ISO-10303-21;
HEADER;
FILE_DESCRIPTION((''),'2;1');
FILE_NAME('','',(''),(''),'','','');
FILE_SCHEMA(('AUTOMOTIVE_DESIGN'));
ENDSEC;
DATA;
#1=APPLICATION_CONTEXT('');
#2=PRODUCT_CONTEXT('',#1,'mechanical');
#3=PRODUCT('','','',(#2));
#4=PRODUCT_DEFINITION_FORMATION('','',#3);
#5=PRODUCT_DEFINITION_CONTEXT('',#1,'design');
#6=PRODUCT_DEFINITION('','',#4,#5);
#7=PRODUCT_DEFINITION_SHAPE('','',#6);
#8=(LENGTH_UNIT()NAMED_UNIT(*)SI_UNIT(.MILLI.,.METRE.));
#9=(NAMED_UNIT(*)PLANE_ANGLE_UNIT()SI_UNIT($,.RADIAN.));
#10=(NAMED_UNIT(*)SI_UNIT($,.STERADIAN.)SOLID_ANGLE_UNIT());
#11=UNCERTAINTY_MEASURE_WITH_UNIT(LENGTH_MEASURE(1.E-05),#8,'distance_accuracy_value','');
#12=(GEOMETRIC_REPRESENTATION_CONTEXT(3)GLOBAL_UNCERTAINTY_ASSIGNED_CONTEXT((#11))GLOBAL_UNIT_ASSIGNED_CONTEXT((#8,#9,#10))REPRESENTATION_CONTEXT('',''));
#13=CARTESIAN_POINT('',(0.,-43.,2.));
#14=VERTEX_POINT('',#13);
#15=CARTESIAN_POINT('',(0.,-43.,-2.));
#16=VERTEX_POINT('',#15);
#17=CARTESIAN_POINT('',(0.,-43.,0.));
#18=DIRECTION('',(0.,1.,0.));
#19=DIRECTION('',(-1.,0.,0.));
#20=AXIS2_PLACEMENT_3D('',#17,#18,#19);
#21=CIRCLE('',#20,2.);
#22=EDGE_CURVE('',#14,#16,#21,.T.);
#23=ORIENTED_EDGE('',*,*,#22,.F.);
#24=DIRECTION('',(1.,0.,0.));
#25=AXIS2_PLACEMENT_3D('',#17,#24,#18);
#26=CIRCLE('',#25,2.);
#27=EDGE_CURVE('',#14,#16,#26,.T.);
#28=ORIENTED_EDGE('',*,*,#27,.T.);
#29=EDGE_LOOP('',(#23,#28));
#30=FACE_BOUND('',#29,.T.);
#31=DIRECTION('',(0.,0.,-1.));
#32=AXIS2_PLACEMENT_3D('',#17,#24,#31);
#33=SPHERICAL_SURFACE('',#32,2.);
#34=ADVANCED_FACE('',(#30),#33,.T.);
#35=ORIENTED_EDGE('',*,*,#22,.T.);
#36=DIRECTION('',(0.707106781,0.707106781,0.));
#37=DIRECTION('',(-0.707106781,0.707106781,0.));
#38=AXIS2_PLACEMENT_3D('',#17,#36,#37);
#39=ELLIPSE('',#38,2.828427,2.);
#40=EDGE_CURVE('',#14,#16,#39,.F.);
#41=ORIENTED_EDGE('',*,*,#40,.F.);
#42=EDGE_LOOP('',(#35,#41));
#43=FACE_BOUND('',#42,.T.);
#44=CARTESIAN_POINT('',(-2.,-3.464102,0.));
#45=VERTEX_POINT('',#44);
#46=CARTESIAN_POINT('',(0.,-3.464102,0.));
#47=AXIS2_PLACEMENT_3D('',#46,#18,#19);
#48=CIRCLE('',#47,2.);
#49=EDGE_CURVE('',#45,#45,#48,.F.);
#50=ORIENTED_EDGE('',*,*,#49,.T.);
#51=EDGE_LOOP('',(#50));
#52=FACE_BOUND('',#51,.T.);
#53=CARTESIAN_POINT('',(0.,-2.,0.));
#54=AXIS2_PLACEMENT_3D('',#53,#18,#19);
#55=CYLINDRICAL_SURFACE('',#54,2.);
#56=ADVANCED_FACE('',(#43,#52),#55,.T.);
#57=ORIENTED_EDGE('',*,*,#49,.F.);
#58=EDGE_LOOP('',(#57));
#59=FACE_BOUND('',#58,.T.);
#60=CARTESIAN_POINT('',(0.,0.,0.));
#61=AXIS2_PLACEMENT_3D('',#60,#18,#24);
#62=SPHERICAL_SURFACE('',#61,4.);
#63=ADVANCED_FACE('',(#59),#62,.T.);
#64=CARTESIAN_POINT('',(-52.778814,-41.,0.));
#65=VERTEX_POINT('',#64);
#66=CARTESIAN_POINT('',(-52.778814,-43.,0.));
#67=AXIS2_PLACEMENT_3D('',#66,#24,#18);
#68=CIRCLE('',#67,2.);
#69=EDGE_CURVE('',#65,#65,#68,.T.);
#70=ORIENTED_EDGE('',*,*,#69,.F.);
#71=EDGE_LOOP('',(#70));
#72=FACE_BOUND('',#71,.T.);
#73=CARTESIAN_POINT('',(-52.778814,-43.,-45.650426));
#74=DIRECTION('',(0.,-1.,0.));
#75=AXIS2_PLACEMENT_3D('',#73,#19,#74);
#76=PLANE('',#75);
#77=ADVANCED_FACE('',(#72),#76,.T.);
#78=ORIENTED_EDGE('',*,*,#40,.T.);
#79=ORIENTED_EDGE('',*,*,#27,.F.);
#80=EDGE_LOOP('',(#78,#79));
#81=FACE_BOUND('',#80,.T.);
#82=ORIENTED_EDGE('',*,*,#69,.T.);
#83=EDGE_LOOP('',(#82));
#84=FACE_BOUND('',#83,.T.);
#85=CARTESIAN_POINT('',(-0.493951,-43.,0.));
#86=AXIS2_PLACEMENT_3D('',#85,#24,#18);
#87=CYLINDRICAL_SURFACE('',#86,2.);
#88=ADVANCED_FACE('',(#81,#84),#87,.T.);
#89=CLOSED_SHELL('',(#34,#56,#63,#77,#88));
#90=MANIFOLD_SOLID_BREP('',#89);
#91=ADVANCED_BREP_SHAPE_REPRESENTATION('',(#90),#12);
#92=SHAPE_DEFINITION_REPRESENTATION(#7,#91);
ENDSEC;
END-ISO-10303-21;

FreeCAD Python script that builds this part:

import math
import FreeCAD as App
import Part
import Sketcher
from FreeCAD import Vector

doc = App.newDocument("Part")
body = doc.addObject("PartDesign::Body", "Body")

sketch1 = body.newObject("Sketcher::SketchObject", "Sketch")
sketch1.AttachmentSupport = (doc.getObject("XY_Plane"), [""])
sketch1.MapMode = "FlatFace"
sketch1.addGeometry([
    Part.ArcOfCircle(Part.Circle(Vector(0, 0, 0), Vector(0, 0, 1), 4), math.radians(90), math.radians(240)),
    Part.ArcOfCircle(Part.Circle(Vector(0, 0, 0), Vector(0, 0, 1), 4), math.radians(-120), math.radians(-90)),
    Part.LineSegment(Vector(0, -4, 0), Vector(0, 4, 0)),
], False)
sketch1.addConstraint([
    Sketcher.Constraint("Tangent", 0, 2, 1, 1),
    Sketcher.Constraint("Coincident", 1, 2, 2, 1),
    Sketcher.Constraint("Coincident", 2, 2, 0, 1),
    Sketcher.Constraint("Vertical", 2),
    Sketcher.Constraint("Coincident", 0, 3, -1, 1),
    Sketcher.Constraint("Equal", 0, 1),
    Sketcher.Constraint("PointOnObject", 1, 2, -2),
    Sketcher.Constraint("Radius", 0, 4.0),
    Sketcher.Constraint("DistanceX", 0, 2, -1, 1, 2.0),
])
revolution = body.newObject("PartDesign::Revolution", "Revolution")
revolution.Profile = sketch1
revolution.ReferenceAxis = (sketch1, ["V_Axis"])
revolution.Angle = 360

sketch2 = body.newObject("Sketcher::SketchObject", "Sketch001")
sketch2.AttachmentSupport = (doc.getObject("XY_Plane"), [""])
sketch2.MapMode = "FlatFace"
sketch2.addGeometry([
    Part.LineSegment(Vector(0, -43, 0), Vector(0, -2, 0)),
    Part.ArcOfCircle(Part.Circle(Vector(0, 0, 0), Vector(0, 0, 1), 2), math.radians(-180), math.radians(-90)),
    Part.LineSegment(Vector(-2, 0, 0), Vector(-2, -43, 0)),
    Part.LineSegment(Vector(-2, -43, 0), Vector(0, -43, 0)),
], False)
sketch2.addConstraint([
    Sketcher.Constraint("Coincident", 0, 2, 1, 2),
    Sketcher.Constraint("Tangent", 1, 1, 2, 1),
    Sketcher.Constraint("Coincident", 2, 2, 3, 1),
    Sketcher.Constraint("Coincident", 3, 2, 0, 1),
    Sketcher.Constraint("Vertical", 0),
    Sketcher.Constraint("Vertical", 2),
    Sketcher.Constraint("Horizontal", 3),
    Sketcher.Constraint("Coincident", 1, 3, -1, 1),
    Sketcher.Constraint("PointOnObject", 0, 2, -2),
    Sketcher.Constraint("Radius", 1, 2.0),
    Sketcher.Constraint("DistanceY", 0, 1, 0, 2, 41.0),
])
revolution2 = body.newObject("PartDesign::Revolution", "Revolution001")
revolution2.Profile = sketch2
revolution2.ReferenceAxis = (sketch2, ["V_Axis"])
revolution2.Angle = 360

sketch3 = body.newObject("Sketcher::SketchObject", "Sketch002")
sketch3.AttachmentSupport = (doc.getObject("XZ_Plane"), [""])
sketch3.MapMode = "FlatFace"
sketch3.AttachmentOffset = App.Placement(Vector(0, 0, 43), App.Rotation())
sketch3.addGeometry([
    Part.LineSegment(Vector(-52.778814, 0, 0), Vector(2, 0, 0)),
    Part.ArcOfCircle(Part.Circle(Vector(0, 0, 0), Vector(0, 0, 1), 2), math.radians(0), math.radians(90)),
    Part.LineSegment(Vector(0, 2, 0), Vector(-52.778814, 2, 0)),
    Part.LineSegment(Vector(-52.778814, 2, 0), Vector(-52.778814, 0, 0)),
], False)
sketch3.addConstraint([
    Sketcher.Constraint("Coincident", 0, 2, 1, 1),
    Sketcher.Constraint("Tangent", 1, 2, 2, 1),
    Sketcher.Constraint("Coincident", 2, 2, 3, 1),
    Sketcher.Constraint("Coincident", 3, 2, 0, 1),
    Sketcher.Constraint("Horizontal", 0),
    Sketcher.Constraint("Horizontal", 2),
    Sketcher.Constraint("Vertical", 3),
    Sketcher.Constraint("Coincident", 1, 3, -1, 1),
    Sketcher.Constraint("PointOnObject", 0, 2, -1),
    Sketcher.Constraint("Radius", 1, 2.0),
    Sketcher.Constraint("DistanceX", 0, 1, 0, 2, 54.778814),
])
revolution3 = body.newObject("PartDesign::Revolution", "Revolution002")
revolution3.Profile = sketch3
revolution3.ReferenceAxis = (sketch3, ["H_Axis"])
revolution3.Angle = 360

doc.recompute()
